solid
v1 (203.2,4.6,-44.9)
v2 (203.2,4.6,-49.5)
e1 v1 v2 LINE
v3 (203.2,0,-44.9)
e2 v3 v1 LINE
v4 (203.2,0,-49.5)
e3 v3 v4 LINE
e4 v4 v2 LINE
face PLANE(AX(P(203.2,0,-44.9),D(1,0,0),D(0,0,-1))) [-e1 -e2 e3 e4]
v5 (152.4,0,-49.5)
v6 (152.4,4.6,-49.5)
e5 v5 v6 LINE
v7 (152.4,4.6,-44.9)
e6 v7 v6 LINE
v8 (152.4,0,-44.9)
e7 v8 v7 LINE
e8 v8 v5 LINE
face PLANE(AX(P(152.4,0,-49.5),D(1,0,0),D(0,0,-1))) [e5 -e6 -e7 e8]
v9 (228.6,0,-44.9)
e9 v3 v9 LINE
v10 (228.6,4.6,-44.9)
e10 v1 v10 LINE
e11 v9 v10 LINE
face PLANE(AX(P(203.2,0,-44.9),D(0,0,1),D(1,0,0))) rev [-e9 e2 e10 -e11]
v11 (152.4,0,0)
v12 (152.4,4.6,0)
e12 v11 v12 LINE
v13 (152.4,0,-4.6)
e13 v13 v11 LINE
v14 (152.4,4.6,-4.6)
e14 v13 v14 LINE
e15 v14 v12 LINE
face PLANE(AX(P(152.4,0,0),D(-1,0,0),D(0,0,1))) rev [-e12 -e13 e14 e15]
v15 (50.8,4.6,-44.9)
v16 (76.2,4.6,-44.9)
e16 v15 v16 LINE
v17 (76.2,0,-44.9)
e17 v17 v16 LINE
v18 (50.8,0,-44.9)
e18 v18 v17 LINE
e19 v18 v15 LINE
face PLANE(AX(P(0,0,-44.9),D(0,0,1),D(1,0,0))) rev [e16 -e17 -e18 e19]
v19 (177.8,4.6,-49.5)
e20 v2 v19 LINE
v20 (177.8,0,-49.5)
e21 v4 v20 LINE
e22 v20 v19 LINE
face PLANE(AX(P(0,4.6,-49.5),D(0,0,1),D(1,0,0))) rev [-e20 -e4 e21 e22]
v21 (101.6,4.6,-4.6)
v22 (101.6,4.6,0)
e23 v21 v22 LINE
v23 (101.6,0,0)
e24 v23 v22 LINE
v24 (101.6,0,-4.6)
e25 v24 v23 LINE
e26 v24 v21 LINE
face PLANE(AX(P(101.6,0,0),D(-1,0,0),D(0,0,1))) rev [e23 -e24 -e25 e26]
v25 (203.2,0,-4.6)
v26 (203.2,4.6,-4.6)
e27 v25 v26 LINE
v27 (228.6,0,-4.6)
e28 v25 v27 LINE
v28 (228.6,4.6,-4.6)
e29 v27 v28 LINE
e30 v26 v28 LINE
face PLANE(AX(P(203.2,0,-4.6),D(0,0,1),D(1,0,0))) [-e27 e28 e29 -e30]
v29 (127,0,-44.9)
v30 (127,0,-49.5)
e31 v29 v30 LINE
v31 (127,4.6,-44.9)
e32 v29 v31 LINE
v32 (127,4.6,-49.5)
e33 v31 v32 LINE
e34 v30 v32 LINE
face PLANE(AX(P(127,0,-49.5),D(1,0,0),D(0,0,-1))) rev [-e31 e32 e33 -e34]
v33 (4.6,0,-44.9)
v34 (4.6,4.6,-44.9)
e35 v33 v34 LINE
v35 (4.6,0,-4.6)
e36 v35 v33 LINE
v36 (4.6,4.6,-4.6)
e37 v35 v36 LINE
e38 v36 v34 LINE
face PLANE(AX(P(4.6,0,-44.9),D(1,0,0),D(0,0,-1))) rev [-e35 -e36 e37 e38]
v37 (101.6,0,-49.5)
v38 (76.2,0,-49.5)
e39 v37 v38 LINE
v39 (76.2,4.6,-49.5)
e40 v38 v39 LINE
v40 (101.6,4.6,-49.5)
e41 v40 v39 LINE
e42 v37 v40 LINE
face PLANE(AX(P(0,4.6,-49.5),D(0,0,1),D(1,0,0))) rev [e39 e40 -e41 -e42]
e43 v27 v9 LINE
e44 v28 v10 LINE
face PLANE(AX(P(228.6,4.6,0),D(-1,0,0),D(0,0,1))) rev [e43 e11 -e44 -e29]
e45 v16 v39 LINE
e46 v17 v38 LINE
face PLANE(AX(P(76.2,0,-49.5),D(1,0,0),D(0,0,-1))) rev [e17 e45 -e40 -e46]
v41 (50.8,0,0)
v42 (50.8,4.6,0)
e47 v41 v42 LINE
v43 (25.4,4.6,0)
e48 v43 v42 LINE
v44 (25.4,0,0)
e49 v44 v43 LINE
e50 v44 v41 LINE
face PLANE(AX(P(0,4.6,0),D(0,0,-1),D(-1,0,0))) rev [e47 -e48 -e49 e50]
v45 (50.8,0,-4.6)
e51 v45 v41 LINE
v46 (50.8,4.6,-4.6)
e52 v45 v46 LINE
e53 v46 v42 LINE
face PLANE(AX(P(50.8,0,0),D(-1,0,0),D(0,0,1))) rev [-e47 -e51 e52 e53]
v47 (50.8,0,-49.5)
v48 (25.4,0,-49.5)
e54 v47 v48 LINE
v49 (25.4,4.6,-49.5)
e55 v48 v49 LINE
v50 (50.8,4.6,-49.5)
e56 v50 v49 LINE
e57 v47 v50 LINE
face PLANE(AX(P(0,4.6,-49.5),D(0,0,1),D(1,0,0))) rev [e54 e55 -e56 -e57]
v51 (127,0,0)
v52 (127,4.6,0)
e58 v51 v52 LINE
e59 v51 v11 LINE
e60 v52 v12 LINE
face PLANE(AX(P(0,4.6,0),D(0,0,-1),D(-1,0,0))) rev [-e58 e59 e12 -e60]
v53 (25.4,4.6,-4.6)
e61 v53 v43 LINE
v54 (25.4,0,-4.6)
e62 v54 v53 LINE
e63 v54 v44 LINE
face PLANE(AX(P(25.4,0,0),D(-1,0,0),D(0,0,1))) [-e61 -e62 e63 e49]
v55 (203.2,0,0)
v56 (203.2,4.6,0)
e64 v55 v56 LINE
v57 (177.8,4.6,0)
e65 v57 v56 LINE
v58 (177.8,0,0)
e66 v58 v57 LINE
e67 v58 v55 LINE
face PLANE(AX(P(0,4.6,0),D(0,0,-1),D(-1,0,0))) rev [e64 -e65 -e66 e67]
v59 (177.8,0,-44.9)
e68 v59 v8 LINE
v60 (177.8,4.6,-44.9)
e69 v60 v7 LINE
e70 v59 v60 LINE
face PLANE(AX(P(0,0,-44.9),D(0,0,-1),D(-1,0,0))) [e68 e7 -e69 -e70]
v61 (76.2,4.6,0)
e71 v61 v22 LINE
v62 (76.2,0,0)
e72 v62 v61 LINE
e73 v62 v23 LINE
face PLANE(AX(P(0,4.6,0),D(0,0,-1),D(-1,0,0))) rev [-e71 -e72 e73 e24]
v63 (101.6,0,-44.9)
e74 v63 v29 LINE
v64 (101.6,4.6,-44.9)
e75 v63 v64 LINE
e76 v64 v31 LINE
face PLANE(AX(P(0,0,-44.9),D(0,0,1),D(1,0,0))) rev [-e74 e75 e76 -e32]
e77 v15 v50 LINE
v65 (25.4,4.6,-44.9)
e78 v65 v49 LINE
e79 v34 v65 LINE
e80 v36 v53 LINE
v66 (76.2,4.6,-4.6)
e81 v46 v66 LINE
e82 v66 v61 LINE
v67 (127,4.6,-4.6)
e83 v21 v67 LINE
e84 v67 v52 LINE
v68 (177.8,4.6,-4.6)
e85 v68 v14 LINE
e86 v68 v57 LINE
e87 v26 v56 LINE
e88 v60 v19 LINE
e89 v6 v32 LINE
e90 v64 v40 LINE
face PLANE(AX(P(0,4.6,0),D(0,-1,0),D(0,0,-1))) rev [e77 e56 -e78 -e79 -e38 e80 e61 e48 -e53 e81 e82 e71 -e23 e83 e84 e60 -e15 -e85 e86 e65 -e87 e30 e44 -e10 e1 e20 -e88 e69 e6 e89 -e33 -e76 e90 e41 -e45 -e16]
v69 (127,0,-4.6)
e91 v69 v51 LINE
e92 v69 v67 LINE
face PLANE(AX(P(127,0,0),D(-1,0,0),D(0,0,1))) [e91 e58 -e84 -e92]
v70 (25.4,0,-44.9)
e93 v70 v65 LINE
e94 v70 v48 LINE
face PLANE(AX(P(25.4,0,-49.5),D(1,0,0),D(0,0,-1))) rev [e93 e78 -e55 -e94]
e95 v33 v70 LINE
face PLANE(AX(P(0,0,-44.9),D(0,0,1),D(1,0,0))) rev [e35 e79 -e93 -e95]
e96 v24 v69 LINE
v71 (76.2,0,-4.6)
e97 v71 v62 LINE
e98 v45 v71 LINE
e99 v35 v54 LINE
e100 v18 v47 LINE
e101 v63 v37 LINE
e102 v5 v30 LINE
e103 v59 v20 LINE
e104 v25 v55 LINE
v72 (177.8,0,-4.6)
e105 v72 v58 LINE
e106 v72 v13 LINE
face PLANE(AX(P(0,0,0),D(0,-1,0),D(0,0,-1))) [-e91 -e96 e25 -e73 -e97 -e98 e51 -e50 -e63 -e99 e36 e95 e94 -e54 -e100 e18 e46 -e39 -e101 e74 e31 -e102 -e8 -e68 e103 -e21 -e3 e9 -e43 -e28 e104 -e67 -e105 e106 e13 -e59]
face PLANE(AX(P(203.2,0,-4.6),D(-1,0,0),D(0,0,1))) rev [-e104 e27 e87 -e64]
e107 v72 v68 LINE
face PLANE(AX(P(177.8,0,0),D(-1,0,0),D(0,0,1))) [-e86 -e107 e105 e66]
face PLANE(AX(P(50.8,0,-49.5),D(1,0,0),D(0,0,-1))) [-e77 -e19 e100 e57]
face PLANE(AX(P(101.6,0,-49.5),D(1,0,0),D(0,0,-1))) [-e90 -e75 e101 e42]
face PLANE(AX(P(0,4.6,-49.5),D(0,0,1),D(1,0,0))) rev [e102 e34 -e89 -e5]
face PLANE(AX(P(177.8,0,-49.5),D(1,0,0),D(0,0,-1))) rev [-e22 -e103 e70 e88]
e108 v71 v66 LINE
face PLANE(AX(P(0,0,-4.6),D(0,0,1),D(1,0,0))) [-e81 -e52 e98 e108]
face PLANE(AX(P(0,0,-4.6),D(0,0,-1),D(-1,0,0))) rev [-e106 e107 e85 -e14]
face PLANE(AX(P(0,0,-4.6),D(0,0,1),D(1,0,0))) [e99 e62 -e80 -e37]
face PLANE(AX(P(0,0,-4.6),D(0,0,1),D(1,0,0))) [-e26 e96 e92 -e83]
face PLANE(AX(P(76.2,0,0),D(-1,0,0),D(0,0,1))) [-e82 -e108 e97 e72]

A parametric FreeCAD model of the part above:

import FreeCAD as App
import Part
import Sketcher
Q = App.Units.Quantity

doc = App.newDocument("Part")
body = doc.addObject("PartDesign::Body", "Body")

sketch1 = doc.addObject("Sketcher::SketchObject", "Sketch")
body.addObject(sketch1)
sketch1.AttachmentSupport = (doc.XZ_Plane, [""])
sketch1.MapMode = "FlatFace"
sketch1.addGeometry(Part.LineSegment(App.Vector(0, -49, 0), App.Vector(0, 0, 0)), False)
sketch1.addGeometry(Part.LineSegment(App.Vector(0, 0, 0), App.Vector(229, 0, 0)), False)
sketch1.addGeometry(Part.LineSegment(App.Vector(229, 0, 0), App.Vector(229, -49, 0)), False)
sketch1.addGeometry(Part.LineSegment(App.Vector(229, -49, 0), App.Vector(0, -49, 0)), False)
sketch1.addConstraint(Sketcher.Constraint("Coincident", 0, 2, 1, 1))
sketch1.addConstraint(Sketcher.Constraint("Coincident", 1, 2, 2, 1))
sketch1.addConstraint(Sketcher.Constraint("Coincident", 2, 2, 3, 1))
sketch1.addConstraint(Sketcher.Constraint("Coincident", 3, 2, 0, 1))
sketch1.addConstraint(Sketcher.Constraint("Vertical", 0))
sketch1.addConstraint(Sketcher.Constraint("Horizontal", 1))
sketch1.addConstraint(Sketcher.Constraint("Vertical", 2))
sketch1.addConstraint(Sketcher.Constraint("Horizontal", 3))
sketch1.addConstraint(Sketcher.Constraint("Coincident", 0, 2, -1, 1))
sketch1.addConstraint(Sketcher.Constraint("DistanceX", 1, 1, 1, 2, Q("228.6 mm")))
sketch1.addConstraint(Sketcher.Constraint("DistanceY", 0, 1, 0, 2, Q("49.5 mm")))
pad1 = doc.addObject("PartDesign::Pad", "Pad")
body.addObject(pad1)
pad1.Profile = sketch1
pad1.Length = 4.6
pad1.Reversed = True

sketch2 = doc.addObject("Sketcher::SketchObject", "Sketch001")
body.addObject(sketch2)
sketch2.AttachmentSupport = (doc.XZ_Plane, [""])
sketch2.MapMode = "FlatFace"
sketch2.AttachmentOffset = App.Placement(App.Vector(0, 0, -4.6), App.Rotation())
sketch2.addGeometry(Part.LineSegment(App.Vector(0, -4.6, 0), App.Vector(0, 0, 0)), False)
sketch2.addGeometry(Part.LineSegment(App.Vector(0, 0, 0), App.Vector(25.4, 0, 0)), False)
sketch2.addGeometry(Part.LineSegment(App.Vector(25.4, 0, 0), App.Vector(25.4, -4.6, 0)), False)
sketch2.addGeometry(Part.LineSegment(App.Vector(25.4, -4.6, 0), App.Vector(0, -4.6, 0)), False)
sketch2.addGeometry(Part.LineSegment(App.Vector(50.8, -4.6, 0), App.Vector(50.8, 0, 0)), False)
sketch2.addGeometry(Part.LineSegment(App.Vector(50.8, 0, 0), App.Vector(76.2, 0, 0)), False)
sketch2.addGeometry(Part.LineSegment(App.Vector(76.2, 0, 0), App.Vector(76.2, -4.6, 0)), False)
sketch2.addGeometry(Part.LineSegment(App.Vector(76.2, -4.6, 0), App.Vector(50.8, -4.6, 0)), False)
sketch2.addGeometry(Part.LineSegment(App.Vector(101.6, -4.6, 0), App.Vector(101.6, 0, 0)), False)
sketch2.addGeometry(Part.LineSegment(App.Vector(101.6, 0, 0), App.Vector(127, 0, 0)), False)
sketch2.addGeometry(Part.LineSegment(App.Vector(127, 0, 0), App.Vector(127, -4.6, 0)), False)
sketch2.addGeometry(Part.LineSegment(App.Vector(127, -4.6, 0), App.Vector(101.6, -4.6, 0)), False)
sketch2.addGeometry(Part.LineSegment(App.Vector(152.4, -4.6, 0), App.Vector(152.4, 0, 0)), False)
sketch2.addGeometry(Part.LineSegment(App.Vector(152.4, 0, 0), App.Vector(177.8, 0, 0)), False)
sketch2.addGeometry(Part.LineSegment(App.Vector(177.8, 0, 0), App.Vector(177.8, -4.6, 0)), False)
sketch2.addGeometry(Part.LineSegment(App.Vector(177.8, -4.6, 0), App.Vector(152.4, -4.6, 0)), False)
sketch2.addGeometry(Part.LineSegment(App.Vector(203.2, -4.6, 0), App.Vector(203.2, 0, 0)), False)
sketch2.addGeometry(Part.LineSegment(App.Vector(203.2, 0, 0), App.Vector(228.6, 0, 0)), False)
sketch2.addGeometry(Part.LineSegment(App.Vector(228.6, 0, 0), App.Vector(228.6, -4.6, 0)), False)
sketch2.addGeometry(Part.LineSegment(App.Vector(228.6, -4.6, 0), App.Vector(203.2, -4.6, 0)), False)
sketch2.addConstraint(Sketcher.Constraint("Coincident", 0, 2, 1, 1))
sketch2.addConstraint(Sketcher.Constraint("Coincident", 1, 2, 2, 1))
sketch2.addConstraint(Sketcher.Constraint("Coincident", 2, 2, 3, 1))
sketch2.addConstraint(Sketcher.Constraint("Coincident", 3, 2, 0, 1))
sketch2.addConstraint(Sketcher.Constraint("Coincident", 4, 2, 5, 1))
sketch2.addConstraint(Sketcher.Constraint("Coincident", 5, 2, 6, 1))
sketch2.addConstraint(Sketcher.Constraint("Coincident", 6, 2, 7, 1))
sketch2.addConstraint(Sketcher.Constraint("Coincident", 7, 2, 4, 1))
sketch2.addConstraint(Sketcher.Constraint("Coincident", 8, 2, 9, 1))
sketch2.addConstraint(Sketcher.Constraint("Coincident", 9, 2, 10, 1))
sketch2.addConstraint(Sketcher.Constraint("Coincident", 10, 2, 11, 1))
sketch2.addConstraint(Sketcher.Constraint("Coincident", 11, 2, 8, 1))
sketch2.addConstraint(Sketcher.Constraint("Coincident", 12, 2, 13, 1))
sketch2.addConstraint(Sketcher.Constraint("Coincident", 13, 2, 14, 1))
sketch2.addConstraint(Sketcher.Constraint("Coincident", 14, 2, 15, 1))
sketch2.addConstraint(Sketcher.Constraint("Coincident", 15, 2, 12, 1))
sketch2.addConstraint(Sketcher.Constraint("Coincident", 16, 2, 17, 1))
sketch2.addConstraint(Sketcher.Constraint("Coincident", 17, 2, 18, 1))
sketch2.addConstraint(Sketcher.Constraint("Coincident", 18, 2, 19, 1))
sketch2.addConstraint(Sketcher.Constraint("Coincident", 19, 2, 16, 1))
sketch2.addConstraint(Sketcher.Constraint("Vertical", 0))
sketch2.addConstraint(Sketcher.Constraint("Horizontal", 1))
sketch2.addConstraint(Sketcher.Constraint("Vertical", 2))
sketch2.addConstraint(Sketcher.Constraint("Horizontal", 3))
sketch2.addConstraint(Sketcher.Constraint("Vertical", 4))
sketch2.addConstraint(Sketcher.Constraint("Horizontal", 5))
sketch2.addConstraint(Sketcher.Constraint("Vertical", 6))
sketch2.addConstraint(Sketcher.Constraint("Horizontal", 7))
sketch2.addConstraint(Sketcher.Constraint("Vertical", 8))
sketch2.addConstraint(Sketcher.Constraint("Horizontal", 9))
sketch2.addConstraint(Sketcher.Constraint("Vertical", 10))
sketch2.addConstraint(Sketcher.Constraint("Horizontal", 11))
sketch2.addConstraint(Sketcher.Constraint("Vertical", 12))
sketch2.addConstraint(Sketcher.Constraint("Horizontal", 13))
sketch2.addConstraint(Sketcher.Constraint("Vertical", 14))
sketch2.addConstraint(Sketcher.Constraint("Horizontal", 15))
sketch2.addConstraint(Sketcher.Constraint("Vertical", 16))
sketch2.addConstraint(Sketcher.Constraint("Horizontal", 17))
sketch2.addConstraint(Sketcher.Constraint("Vertical", 18))
sketch2.addConstraint(Sketcher.Constraint("Horizontal", 19))
sketch2.addConstraint(Sketcher.Constraint("Coincident", 0, 2, -1, 1))
sketch2.addConstraint(Sketcher.Constraint("PointOnObject", 4, 2, -1))
sketch2.addConstraint(Sketcher.Constraint("PointOnObject", 8, 2, -1))
sketch2.addConstraint(Sketcher.Constraint("PointOnObject", 12, 2, -1))
sketch2.addConstraint(Sketcher.Constraint("PointOnObject", 16, 2, -1))
sketch2.addConstraint(Sketcher.Constraint("Horizontal", 3, 2, 6, 2))
sketch2.addConstraint(Sketcher.Constraint("Horizontal", 7, 2, 10, 2))
sketch2.addConstraint(Sketcher.Constraint("Horizontal", 11, 2, 14, 2))
sketch2.addConstraint(Sketcher.Constraint("Horizontal", 15, 2, 18, 2))
sketch2.addConstraint(Sketcher.Constraint("Equal", 3, 5))
sketch2.addConstraint(Sketcher.Constraint("Equal", 7, 9))
sketch2.addConstraint(Sketcher.Constraint("Equal", 11, 13))
sketch2.addConstraint(Sketcher.Constraint("Equal", 15, 17))
sketch2.addConstraint(Sketcher.Constraint("DistanceX", 1, 1, 1, 2, Q("25.4 mm")))
sketch2.addConstraint(Sketcher.Constraint("DistanceY", 0, 1, 0, 2, Q("4.6 mm")))
sketch2.addConstraint(Sketcher.Constraint("DistanceX", -1, 1, 9, 2, Q("127 mm")))
sketch2.addConstraint(Sketcher.Constraint("DistanceX", -1, 1, 4, 2, Q("50.8 mm")))
sketch2.addConstraint(Sketcher.Constraint("DistanceX", -1, 1, 12, 2, Q("152.4 mm")))
sketch2.addConstraint(Sketcher.Constraint("DistanceX", -1, 1, 16, 2, Q("203.2 mm")))
pocket1 = doc.addObject("PartDesign::Pocket", "Pocket")
body.addObject(pocket1)
pocket1.Profile = sketch2
pocket1.Type = "ThroughAll"
pocket1.Reversed = True
doc.recompute()

datumplane = doc.addObject("PartDesign::Plane", "DatumPlane")
body.addObject(datumplane)
datumplane.AttachmentSupport = (doc.XY_Plane, [""])
datumplane.MapMode = "FlatFace"
datumplane.AttachmentOffset = App.Placement(App.Vector(0, 0, -24.75), App.Rotation())
mirrored = doc.addObject("PartDesign::Mirrored", "Mirrored")
body.addObject(mirrored)
mirrored.Originals = [pocket1]
mirrored.MirrorPlane = (datumplane, [""])
body.Tip = mirrored

sketch3 = doc.addObject("Sketcher::SketchObject", "Sketch002")
body.addObject(sketch3)
sketch3.AttachmentSupport = (doc.XZ_Plane, [""])
sketch3.MapMode = "FlatFace"
sketch3.AttachmentOffset = App.Placement(App.Vector(0, 0, -4.6), App.Rotation())
sketch3.addGeometry(Part.LineSegment(App.Vector(0, -44.9, 0), App.Vector(0, -4.6, 0)), False)
sketch3.addGeometry(Part.LineSegment(App.Vector(0, -4.6, 0), App.Vector(4.6, -4.6, 0)), False)
sketch3.addGeometry(Part.LineSegment(App.Vector(4.6, -4.6, 0), App.Vector(4.6, -44.9, 0)), False)
sketch3.addGeometry(Part.LineSegment(App.Vector(4.6, -44.9, 0), App.Vector(0, -44.9, 0)), False)
sketch3.addConstraint(Sketcher.Constraint("Coincident", 0, 2, 1, 1))
sketch3.addConstraint(Sketcher.Constraint("Coincident", 1, 2, 2, 1))
sketch3.addConstraint(Sketcher.Constraint("Coincident", 2, 2, 3, 1))
sketch3.addConstraint(Sketcher.Constraint("Coincident", 3, 2, 0, 1))
sketch3.addConstraint(Sketcher.Constraint("Vertical", 0))
sketch3.addConstraint(Sketcher.Constraint("Horizontal", 1))
sketch3.addConstraint(Sketcher.Constraint("Vertical", 2))
sketch3.addConstraint(Sketcher.Constraint("Horizontal", 3))
sketch3.addConstraint(Sketcher.Constraint("PointOnObject", 0, 2, -2))
sketch3.addConstraint(Sketcher.Constraint("DistanceX", 1, 1, 1, 2, Q("4.6 mm")))
sketch3.addConstraint(Sketcher.Constraint("DistanceY", 0, 1, 0, 2, Q("40.3 mm")))
sketch3.addConstraint(Sketcher.Constraint("DistanceY", 0, 2, -1, 1, Q("4.6 mm")))
pocket2 = doc.addObject("PartDesign::Pocket", "Pocket001")
body.addObject(pocket2)
pocket2.Profile = sketch3
pocket2.Type = "ThroughAll"
pocket2.Reversed = True

doc.recompute()
